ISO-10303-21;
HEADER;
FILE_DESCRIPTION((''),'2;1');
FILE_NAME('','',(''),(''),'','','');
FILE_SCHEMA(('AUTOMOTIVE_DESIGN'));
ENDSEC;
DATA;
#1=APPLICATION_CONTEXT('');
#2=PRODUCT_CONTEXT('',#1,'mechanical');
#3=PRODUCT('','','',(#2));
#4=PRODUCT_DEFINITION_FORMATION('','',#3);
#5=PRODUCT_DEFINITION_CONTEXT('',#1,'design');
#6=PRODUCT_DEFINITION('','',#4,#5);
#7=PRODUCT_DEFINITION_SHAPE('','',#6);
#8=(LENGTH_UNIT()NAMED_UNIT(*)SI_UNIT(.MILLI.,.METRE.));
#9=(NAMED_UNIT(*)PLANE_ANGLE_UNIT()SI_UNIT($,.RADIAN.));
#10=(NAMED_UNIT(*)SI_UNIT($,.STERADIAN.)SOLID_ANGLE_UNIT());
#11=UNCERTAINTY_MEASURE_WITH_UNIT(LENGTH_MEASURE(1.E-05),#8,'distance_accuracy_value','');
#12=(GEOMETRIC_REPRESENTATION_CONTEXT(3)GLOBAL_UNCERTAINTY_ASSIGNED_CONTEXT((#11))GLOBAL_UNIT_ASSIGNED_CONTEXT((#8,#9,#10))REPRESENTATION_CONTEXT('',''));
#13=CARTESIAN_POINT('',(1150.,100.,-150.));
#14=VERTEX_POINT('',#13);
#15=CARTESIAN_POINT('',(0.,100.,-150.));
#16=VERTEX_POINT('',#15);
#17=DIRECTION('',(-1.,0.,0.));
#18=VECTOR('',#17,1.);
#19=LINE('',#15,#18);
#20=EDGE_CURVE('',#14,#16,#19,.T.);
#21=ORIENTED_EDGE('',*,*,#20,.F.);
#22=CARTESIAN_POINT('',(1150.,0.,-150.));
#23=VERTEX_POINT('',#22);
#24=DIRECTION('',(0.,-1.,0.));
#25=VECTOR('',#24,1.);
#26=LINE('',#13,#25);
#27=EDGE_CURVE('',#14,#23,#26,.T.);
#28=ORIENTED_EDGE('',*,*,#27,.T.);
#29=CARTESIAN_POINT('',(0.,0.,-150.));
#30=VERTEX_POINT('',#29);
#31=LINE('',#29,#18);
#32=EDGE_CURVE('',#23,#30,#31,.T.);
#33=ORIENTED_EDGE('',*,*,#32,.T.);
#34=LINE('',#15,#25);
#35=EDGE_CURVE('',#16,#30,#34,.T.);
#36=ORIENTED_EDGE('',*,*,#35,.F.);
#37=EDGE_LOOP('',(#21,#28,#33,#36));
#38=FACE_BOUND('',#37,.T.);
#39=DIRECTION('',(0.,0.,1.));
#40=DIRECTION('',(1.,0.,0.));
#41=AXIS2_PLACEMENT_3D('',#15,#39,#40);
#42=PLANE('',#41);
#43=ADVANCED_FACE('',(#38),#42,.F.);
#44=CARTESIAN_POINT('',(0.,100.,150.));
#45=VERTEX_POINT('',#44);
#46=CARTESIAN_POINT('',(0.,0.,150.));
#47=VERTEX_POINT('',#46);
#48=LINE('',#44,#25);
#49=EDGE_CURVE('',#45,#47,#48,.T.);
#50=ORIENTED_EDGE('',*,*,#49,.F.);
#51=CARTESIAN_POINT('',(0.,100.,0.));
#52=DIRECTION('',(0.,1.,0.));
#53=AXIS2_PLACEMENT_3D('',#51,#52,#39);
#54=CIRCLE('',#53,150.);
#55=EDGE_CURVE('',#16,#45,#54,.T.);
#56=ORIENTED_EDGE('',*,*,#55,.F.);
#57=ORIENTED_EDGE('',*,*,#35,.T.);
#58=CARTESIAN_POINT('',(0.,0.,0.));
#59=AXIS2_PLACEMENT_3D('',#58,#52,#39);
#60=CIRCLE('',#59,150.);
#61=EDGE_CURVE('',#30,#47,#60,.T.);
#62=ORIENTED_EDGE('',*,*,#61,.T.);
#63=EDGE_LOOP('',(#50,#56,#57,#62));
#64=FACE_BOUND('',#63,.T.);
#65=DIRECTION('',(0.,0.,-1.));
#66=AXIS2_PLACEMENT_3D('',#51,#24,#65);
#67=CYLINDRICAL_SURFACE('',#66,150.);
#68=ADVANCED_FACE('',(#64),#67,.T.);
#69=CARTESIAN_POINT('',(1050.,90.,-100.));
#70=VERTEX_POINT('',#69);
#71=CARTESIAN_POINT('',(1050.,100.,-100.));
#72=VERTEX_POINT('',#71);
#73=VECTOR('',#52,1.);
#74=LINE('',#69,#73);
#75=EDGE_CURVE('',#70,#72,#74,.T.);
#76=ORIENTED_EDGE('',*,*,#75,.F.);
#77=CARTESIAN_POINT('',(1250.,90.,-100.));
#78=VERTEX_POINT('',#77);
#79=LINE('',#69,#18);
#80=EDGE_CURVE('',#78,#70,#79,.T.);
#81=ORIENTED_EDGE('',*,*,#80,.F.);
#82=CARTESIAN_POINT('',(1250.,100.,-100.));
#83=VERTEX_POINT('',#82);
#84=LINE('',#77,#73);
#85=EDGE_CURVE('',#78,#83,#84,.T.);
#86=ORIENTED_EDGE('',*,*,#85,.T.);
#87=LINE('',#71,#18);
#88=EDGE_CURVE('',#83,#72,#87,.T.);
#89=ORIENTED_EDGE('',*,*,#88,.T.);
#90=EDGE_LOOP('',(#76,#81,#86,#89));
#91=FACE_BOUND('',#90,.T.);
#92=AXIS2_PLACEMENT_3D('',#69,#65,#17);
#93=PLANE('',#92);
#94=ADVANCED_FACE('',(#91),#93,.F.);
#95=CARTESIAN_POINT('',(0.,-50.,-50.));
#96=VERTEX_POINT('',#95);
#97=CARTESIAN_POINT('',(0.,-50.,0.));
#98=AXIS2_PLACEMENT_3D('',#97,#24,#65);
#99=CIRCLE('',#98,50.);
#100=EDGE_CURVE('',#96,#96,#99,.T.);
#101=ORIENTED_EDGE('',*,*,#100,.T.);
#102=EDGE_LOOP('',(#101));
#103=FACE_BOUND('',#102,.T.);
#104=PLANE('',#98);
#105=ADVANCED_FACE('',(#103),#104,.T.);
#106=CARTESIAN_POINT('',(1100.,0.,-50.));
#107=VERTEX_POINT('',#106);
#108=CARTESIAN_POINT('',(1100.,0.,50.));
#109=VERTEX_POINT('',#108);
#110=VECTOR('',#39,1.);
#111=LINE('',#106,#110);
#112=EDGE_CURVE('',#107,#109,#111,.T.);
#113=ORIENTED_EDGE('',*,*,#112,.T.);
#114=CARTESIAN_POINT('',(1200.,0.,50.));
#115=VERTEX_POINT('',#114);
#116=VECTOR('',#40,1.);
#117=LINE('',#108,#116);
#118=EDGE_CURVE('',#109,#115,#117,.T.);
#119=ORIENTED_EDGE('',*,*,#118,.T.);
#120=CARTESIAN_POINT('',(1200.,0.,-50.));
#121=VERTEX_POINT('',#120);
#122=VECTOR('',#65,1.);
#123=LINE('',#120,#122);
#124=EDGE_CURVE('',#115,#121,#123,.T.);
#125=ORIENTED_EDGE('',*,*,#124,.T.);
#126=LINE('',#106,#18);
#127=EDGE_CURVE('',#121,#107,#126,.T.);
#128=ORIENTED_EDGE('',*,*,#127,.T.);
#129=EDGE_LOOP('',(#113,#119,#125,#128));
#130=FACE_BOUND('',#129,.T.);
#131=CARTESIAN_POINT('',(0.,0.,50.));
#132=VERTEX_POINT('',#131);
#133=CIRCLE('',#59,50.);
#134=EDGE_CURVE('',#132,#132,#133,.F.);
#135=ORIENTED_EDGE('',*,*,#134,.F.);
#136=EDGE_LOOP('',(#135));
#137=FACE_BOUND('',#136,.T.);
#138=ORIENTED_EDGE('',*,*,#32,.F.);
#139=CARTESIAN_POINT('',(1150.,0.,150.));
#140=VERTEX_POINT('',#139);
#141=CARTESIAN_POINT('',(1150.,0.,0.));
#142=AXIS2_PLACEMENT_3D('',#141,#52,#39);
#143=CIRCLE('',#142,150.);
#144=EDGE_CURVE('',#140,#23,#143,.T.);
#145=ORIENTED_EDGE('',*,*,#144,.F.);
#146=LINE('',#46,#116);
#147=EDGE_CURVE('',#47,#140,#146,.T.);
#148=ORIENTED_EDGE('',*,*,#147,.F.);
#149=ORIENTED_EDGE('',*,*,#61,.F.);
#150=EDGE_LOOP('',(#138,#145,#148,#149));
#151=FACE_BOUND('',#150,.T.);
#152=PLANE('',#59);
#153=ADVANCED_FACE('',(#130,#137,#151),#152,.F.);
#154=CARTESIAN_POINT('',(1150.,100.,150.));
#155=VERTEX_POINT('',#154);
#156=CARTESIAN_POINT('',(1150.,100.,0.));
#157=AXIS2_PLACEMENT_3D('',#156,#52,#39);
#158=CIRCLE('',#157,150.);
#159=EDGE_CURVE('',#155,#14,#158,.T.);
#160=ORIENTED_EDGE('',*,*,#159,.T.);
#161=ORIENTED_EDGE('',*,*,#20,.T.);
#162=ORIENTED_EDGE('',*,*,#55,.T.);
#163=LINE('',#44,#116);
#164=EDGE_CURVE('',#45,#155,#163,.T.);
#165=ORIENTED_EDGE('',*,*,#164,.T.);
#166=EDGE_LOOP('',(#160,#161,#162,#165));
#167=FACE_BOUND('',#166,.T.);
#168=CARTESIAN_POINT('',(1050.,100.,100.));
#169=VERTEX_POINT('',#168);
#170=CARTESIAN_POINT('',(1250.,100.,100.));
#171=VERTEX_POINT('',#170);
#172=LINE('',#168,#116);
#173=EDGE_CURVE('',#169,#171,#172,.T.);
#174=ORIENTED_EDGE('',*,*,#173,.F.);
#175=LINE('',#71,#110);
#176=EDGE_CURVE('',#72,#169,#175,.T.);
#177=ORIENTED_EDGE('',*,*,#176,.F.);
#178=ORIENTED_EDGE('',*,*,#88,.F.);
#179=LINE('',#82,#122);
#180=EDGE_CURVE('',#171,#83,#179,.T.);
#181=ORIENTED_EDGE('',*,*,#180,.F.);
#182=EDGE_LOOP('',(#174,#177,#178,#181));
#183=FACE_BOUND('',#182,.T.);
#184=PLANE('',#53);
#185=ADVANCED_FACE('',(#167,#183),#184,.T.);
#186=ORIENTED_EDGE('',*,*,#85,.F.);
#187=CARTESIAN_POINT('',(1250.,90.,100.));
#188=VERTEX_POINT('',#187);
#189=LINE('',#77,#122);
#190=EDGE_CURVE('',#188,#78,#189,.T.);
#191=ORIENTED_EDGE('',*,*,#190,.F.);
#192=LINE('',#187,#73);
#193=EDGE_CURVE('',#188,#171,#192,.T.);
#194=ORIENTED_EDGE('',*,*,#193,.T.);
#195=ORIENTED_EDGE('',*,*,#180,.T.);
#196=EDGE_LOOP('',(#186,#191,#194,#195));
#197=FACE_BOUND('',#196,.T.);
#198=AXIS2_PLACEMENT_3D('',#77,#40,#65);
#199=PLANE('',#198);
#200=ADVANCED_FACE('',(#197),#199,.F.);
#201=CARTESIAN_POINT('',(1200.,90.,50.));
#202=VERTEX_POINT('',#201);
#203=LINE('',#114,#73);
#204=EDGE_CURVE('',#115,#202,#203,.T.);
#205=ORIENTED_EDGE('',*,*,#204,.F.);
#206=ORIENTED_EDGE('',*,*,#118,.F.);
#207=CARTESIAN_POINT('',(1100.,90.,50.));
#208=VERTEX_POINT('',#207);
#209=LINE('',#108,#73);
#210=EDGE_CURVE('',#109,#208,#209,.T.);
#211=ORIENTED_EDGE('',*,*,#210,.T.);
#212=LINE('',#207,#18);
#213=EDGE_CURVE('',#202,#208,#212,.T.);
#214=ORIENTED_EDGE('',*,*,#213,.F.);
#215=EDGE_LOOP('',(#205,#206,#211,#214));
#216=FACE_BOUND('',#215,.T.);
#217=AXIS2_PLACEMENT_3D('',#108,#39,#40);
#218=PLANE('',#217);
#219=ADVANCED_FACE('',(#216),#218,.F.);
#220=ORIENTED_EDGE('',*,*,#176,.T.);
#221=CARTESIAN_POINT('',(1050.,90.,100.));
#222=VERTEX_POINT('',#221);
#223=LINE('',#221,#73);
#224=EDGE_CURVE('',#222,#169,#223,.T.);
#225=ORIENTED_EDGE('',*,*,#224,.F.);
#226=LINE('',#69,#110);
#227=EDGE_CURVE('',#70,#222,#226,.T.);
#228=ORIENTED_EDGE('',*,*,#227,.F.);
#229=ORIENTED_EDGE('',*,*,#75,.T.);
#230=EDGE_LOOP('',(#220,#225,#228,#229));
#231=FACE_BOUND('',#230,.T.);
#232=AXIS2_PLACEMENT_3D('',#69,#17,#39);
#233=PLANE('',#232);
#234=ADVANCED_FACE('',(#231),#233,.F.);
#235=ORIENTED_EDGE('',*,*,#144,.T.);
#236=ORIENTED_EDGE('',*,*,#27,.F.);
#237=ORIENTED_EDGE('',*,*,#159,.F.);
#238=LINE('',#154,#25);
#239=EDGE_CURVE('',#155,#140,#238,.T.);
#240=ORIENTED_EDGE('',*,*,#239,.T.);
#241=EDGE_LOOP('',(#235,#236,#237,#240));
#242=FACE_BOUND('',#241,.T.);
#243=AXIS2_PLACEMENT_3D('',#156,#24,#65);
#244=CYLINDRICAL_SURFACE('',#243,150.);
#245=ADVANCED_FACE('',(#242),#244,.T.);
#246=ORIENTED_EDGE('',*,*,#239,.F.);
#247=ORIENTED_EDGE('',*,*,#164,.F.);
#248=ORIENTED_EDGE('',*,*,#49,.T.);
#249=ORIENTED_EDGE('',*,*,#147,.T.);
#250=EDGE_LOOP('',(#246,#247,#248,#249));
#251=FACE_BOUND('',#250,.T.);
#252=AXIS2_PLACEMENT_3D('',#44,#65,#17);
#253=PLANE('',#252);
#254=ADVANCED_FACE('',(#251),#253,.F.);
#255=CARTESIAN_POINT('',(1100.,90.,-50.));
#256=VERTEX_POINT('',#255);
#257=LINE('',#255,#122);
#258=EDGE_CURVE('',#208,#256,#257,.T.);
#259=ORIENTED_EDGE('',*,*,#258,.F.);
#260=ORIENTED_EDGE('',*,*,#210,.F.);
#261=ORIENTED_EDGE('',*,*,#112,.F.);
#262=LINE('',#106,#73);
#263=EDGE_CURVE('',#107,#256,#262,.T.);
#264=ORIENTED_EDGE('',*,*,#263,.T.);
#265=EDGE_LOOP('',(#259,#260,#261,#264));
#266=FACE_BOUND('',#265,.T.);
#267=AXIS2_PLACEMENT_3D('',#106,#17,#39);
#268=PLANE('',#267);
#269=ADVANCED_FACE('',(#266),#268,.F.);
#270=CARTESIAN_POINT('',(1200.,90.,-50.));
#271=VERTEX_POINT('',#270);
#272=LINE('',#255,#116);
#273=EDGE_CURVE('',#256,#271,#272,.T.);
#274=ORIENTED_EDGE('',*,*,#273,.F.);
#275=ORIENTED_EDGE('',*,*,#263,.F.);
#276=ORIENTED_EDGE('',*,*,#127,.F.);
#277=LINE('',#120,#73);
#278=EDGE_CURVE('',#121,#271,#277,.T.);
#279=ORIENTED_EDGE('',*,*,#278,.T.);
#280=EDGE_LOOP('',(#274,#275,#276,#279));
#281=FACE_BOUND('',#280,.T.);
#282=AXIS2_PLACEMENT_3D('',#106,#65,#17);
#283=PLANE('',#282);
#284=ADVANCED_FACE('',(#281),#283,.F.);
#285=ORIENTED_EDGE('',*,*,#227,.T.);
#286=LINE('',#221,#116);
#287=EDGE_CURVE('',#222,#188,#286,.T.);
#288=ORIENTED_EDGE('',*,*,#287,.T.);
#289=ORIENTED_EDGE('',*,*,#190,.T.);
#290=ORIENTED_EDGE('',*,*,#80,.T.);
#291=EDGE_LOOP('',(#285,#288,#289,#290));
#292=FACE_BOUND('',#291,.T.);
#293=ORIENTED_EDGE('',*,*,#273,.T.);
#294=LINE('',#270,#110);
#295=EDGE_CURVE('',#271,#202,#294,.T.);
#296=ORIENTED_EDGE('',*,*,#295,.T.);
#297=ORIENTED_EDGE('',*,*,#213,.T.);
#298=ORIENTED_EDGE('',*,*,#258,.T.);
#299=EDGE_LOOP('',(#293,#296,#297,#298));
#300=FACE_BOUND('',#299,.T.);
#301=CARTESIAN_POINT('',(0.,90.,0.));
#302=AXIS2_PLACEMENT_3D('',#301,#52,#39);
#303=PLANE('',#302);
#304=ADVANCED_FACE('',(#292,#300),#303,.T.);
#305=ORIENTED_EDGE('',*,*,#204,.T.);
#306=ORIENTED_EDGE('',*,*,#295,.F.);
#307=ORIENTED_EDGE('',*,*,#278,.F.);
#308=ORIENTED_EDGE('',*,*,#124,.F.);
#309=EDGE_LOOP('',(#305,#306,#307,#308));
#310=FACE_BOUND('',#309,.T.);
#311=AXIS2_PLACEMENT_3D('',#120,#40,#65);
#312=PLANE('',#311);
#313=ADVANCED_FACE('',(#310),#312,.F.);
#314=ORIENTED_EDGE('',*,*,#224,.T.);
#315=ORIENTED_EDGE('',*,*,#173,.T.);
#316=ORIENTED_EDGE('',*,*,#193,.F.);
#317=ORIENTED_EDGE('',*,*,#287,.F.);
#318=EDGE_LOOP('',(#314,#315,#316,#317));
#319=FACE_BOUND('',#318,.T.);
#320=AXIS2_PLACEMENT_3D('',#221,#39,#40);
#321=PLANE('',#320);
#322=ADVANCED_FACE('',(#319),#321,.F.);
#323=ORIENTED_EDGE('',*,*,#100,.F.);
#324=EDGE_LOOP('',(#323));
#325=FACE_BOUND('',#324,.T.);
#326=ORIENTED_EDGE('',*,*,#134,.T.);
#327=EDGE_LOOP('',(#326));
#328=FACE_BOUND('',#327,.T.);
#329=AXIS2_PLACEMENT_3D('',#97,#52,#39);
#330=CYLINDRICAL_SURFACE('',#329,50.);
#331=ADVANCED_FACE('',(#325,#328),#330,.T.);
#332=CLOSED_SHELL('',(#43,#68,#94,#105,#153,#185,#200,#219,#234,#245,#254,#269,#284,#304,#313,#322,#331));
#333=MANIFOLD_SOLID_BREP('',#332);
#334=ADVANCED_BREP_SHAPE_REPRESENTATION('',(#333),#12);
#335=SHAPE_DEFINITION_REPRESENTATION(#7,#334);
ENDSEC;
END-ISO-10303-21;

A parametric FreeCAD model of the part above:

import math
import FreeCAD as App
import Part
import Sketcher
from FreeCAD import Vector

doc = App.newDocument("Part")
body = doc.addObject("PartDesign::Body", "Body")

# Sketch on XZ plane
sketch1 = body.newObject("Sketcher::SketchObject", "Sketch")
sketch1.AttachmentSupport = (doc.getObject("XZ_Plane"), [""])
sketch1.MapMode = "FlatFace"
sketch1.addGeometry([
    Part.LineSegment(Vector(1150, -150, 0), Vector(0, -150, 0)),
    Part.ArcOfCircle(Part.Circle(Vector(0, 0, 0), Vector(0, 0, 1), 150), math.radians(90), math.radians(270)),
    Part.LineSegment(Vector(0, 150, 0), Vector(1150, 150, 0)),
    Part.ArcOfCircle(Part.Circle(Vector(1150, 0, 0), Vector(0, 0, 1), 150), math.radians(-90), math.radians(90)),
], False)
sketch1.addConstraint([
    Sketcher.Constraint("Tangent", 0, 2, 1, 2),
    Sketcher.Constraint("Tangent", 1, 1, 2, 1),
    Sketcher.Constraint("Tangent", 2, 2, 3, 2),
    Sketcher.Constraint("Tangent", 3, 1, 0, 1),
    Sketcher.Constraint("Horizontal", 0),
    Sketcher.Constraint("Horizontal", 2),
    Sketcher.Constraint("Coincident", 1, 3, -1, 1),
    Sketcher.Constraint("Radius", 1, 150.0),
    Sketcher.Constraint("DistanceX", 0, 2, 0, 1, 1150.0),
])
pad1 = body.newObject("PartDesign::Pad", "Pad")
pad1.Profile = sketch1
pad1.Length = 100
pad1.Reversed = True

# Sketch on XZ plane
sketch2 = body.newObject("Sketcher::SketchObject", "Sketch001")
sketch2.AttachmentSupport = (doc.getObject("XZ_Plane"), [""])
sketch2.MapMode = "FlatFace"
sketch2.addGeometry(Part.Circle(Vector(0, 0, 0), Vector(0, 0, 1), 50), False)
sketch2.addConstraint([
    Sketcher.Constraint("Coincident", 0, 3, -1, 1),
    Sketcher.Constraint("Diameter", 0, 100.0),
])
pad2 = body.newObject("PartDesign::Pad", "Pad001")
pad2.Profile = sketch2
pad2.Length = 50

# Sketch on XZ plane
sketch3 = body.newObject("Sketcher::SketchObject", "Sketch002")
sketch3.AttachmentSupport = (doc.getObject("XZ_Plane"), [""])
sketch3.MapMode = "FlatFace"
sketch3.AttachmentOffset = App.Placement(Vector(0, 0, -100), App.Rotation())
sketch3.addGeometry([
    Part.LineSegment(Vector(1100, -50, 0), Vector(1100, 50, 0)),
    Part.LineSegment(Vector(1100, 50, 0), Vector(1200, 50, 0)),
    Part.LineSegment(Vector(1200, 50, 0), Vector(1200, -50, 0)),
    Part.LineSegment(Vector(1200, -50, 0), Vector(1100, -50, 0)),
], False)
sketch3.addConstraint([
    Sketcher.Constraint("Coincident", 0, 2, 1, 1),
    Sketcher.Constraint("Coincident", 1, 2, 2, 1),
    Sketcher.Constraint("Coincident", 2, 2, 3, 1),
    Sketcher.Constraint("Coincident", 3, 2, 0, 1),
    Sketcher.Constraint("Vertical", 0),
    Sketcher.Constraint("Horizontal", 1),
    Sketcher.Constraint("Vertical", 2),
    Sketcher.Constraint("Horizontal", 3),
    Sketcher.Constraint("Equal", 3, 0),
    Sketcher.Constraint("DistanceX", 1, 1, 1, 2, 100.0),
    Sketcher.Constraint("DistanceX", -1, 1, 0, 2, 1100.0),
    Sketcher.Constraint("DistanceY", -1, 1, 0, 2, 50.0),
])
pocket1 = body.newObject("PartDesign::Pocket", "Pocket")
pocket1.Profile = sketch3
pocket1.Length = 100
pocket1.Reversed = True

# Sketch on XZ plane
sketch4 = body.newObject("Sketcher::SketchObject", "Sketch003")
sketch4.AttachmentSupport = (doc.getObject("XZ_Plane"), [""])
sketch4.MapMode = "FlatFace"
sketch4.AttachmentOffset = App.Placement(Vector(0, 0, -100), App.Rotation())
sketch4.addGeometry([
    Part.LineSegment(Vector(1050, -100, 0), Vector(1050, 100, 0)),
    Part.LineSegment(Vector(1050, 100, 0), Vector(1250, 100, 0)),
    Part.LineSegment(Vector(1250, 100, 0), Vector(1250, -100, 0)),
    Part.LineSegment(Vector(1250, -100, 0), Vector(1050, -100, 0)),
], False)
sketch4.addConstraint([
    Sketcher.Constraint("Coincident", 0, 2, 1, 1),
    Sketcher.Constraint("Coincident", 1, 2, 2, 1),
    Sketcher.Constraint("Coincident", 2, 2, 3, 1),
    Sketcher.Constraint("Coincident", 3, 2, 0, 1),
    Sketcher.Constraint("Vertical", 0),
    Sketcher.Constraint("Horizontal", 1),
    Sketcher.Constraint("Vertical", 2),
    Sketcher.Constraint("Horizontal", 3),
    Sketcher.Constraint("Equal", 3, 0),
    Sketcher.Constraint("DistanceX", 1, 1, 1, 2, 200.0),
    Sketcher.Constraint("DistanceX", -1, 1, 0, 2, 1050.0),
    Sketcher.Constraint("DistanceY", -1, 1, 0, 2, 100.0),
])
pocket2 = body.newObject("PartDesign::Pocket", "Pocket001")
pocket2.Profile = sketch4
pocket2.Length = 10
pocket2.Reversed = True

doc.recompute()
